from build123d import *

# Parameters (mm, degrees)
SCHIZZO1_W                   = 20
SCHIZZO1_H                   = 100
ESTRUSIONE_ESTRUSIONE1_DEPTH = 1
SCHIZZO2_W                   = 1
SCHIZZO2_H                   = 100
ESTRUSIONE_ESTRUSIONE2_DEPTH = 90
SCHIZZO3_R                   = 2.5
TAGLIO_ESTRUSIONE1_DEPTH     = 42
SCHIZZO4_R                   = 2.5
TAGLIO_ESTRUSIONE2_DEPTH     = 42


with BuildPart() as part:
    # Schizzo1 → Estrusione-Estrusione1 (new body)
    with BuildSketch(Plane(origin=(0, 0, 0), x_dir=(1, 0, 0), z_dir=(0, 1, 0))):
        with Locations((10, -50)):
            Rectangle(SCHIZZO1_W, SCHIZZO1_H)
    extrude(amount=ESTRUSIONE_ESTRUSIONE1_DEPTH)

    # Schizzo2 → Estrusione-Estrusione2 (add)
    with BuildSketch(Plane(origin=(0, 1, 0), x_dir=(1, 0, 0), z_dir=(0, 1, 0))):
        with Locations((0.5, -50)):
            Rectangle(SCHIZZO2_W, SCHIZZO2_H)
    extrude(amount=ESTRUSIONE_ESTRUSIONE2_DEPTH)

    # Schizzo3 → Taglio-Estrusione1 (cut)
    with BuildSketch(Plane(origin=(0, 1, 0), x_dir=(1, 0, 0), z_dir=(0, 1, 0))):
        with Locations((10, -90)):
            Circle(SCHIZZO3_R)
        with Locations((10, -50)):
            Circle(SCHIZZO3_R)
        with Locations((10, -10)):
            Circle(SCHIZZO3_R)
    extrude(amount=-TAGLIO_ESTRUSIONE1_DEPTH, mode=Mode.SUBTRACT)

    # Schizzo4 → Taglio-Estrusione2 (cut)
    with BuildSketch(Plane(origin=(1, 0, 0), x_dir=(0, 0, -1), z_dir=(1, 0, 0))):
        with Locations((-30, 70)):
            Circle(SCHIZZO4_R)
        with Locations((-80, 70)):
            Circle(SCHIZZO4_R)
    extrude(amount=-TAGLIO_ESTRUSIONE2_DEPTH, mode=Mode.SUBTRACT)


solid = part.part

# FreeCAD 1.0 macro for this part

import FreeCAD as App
import Part
import Sketcher


def add_polygon(sketch, points):
    """Adds a closed chain of lines whose ends are joined by coincident constraints."""
    first, n = sketch.GeometryCount, len(points)
    for a, b in zip(points, points[1:] + points[:1]):
        sketch.addGeometry(Part.LineSegment(App.Vector(*a, 0), App.Vector(*b, 0)), False)
    for i in range(n):
        sketch.addConstraint(Sketcher.Constraint("Coincident", first + i, 2, first + (i + 1) % n, 1))

doc = App.newDocument("Part")
body = doc.addObject("PartDesign::Body", "Body")

sketch1 = body.newObject("Sketcher::SketchObject", "Sketch")
sketch1.AttachmentSupport = (doc.getObject("XZ_Plane"), [""])
sketch1.MapMode = "FlatFace"
add_polygon(sketch1, [(0, 0), (0, 100), (20, 100), (20, 0)])
sketch1.addConstraint([
    Sketcher.Constraint("Vertical", 0),
    Sketcher.Constraint("Horizontal", 1),
    Sketcher.Constraint("Vertical", 2),
    Sketcher.Constraint("Horizontal", 3),
    Sketcher.Constraint("Coincident", 3, 2, -1, 1),
    Sketcher.Constraint("DistanceX", 1, 1, 1, 2, 20.0),
    Sketcher.Constraint("DistanceY", 0, 1, 0, 2, 100.0),
])
pad1 = body.newObject("PartDesign::Pad", "Pad")
pad1.Profile = sketch1
pad1.Length = 1
pad1.Reversed = True

sketch2 = body.newObject("Sketcher::SketchObject", "Sketch001")
sketch2.AttachmentSupport = (doc.getObject("XZ_Plane"), [""])
sketch2.MapMode = "FlatFace"
sketch2.AttachmentOffset = App.Placement(App.Vector(0, 0, -1), App.Rotation())
add_polygon(sketch2, [(0, 0), (0, 100), (1, 100), (1, 0)])
sketch2.addConstraint([
    Sketcher.Constraint("Vertical", 0),
    Sketcher.Constraint("Horizontal", 1),
    Sketcher.Constraint("Vertical", 2),
    Sketcher.Constraint("Horizontal", 3),
    Sketcher.Constraint("Coincident", 3, 2, -1, 1),
    Sketcher.Constraint("DistanceX", 1, 1, 1, 2, 1.0),
    Sketcher.Constraint("DistanceY", 0, 1, 0, 2, 100.0),
])
pad2 = body.newObject("PartDesign::Pad", "Pad001")
pad2.Profile = sketch2
pad2.Length = 90
pad2.Reversed = True

sketch3 = body.newObject("Sketcher::SketchObject", "Sketch002")
sketch3.AttachmentSupport = (doc.getObject("XZ_Plane"), [""])
sketch3.MapMode = "FlatFace"
sketch3.AttachmentOffset = App.Placement(App.Vector(0, 0, -1), App.Rotation())
sketch3.addGeometry([
    Part.Circle(App.Vector(10, 90, 0), App.Vector(0, 0, 1), 2.5),
    Part.Circle(App.Vector(10, 50, 0), App.Vector(0, 0, 1), 2.5),
    Part.Circle(App.Vector(10, 10, 0), App.Vector(0, 0, 1), 2.5),
], False)
sketch3.addConstraint([
    Sketcher.Constraint("Equal", 0, 1),
    Sketcher.Constraint("Equal", 1, 2),
    Sketcher.Constraint("Vertical", 0, 3, 1, 3),
    Sketcher.Constraint("Vertical", 1, 3, 2, 3),
    Sketcher.Constraint("Diameter", 0, 5.0),
    Sketcher.Constraint("DistanceX", -1, 1, 0, 3, 10.0),
    Sketcher.Constraint("DistanceY", -1, 1, 0, 3, 90.0),
    Sketcher.Constraint("DistanceY", -1, 1, 1, 3, 50.0),
    Sketcher.Constraint("DistanceY", -1, 1, 2, 3, 10.0),
])
pocket1 = body.newObject("PartDesign::Pocket", "Pocket")
pocket1.Profile = sketch3
pocket1.Length = 42
pocket1.Reversed = True

sketch4 = body.newObject("Sketcher::SketchObject", "Sketch003")
sketch4.AttachmentSupport = (doc.getObject("YZ_Plane"), [""])
sketch4.MapMode = "FlatFace"
sketch4.AttachmentOffset = App.Placement(App.Vector(0, 0, 1), App.Rotation())
sketch4.addGeometry([
    Part.Circle(App.Vector(70, 30, 0), App.Vector(0, 0, 1), 2.5),
    Part.Circle(App.Vector(70, 80, 0), App.Vector(0, 0, 1), 2.5),
], False)
sketch4.addConstraint([
    Sketcher.Constraint("Equal", 0, 1),
    Sketcher.Constraint("Vertical", 0, 3, 1, 3),
    Sketcher.Constraint("Diameter", 0, 5.0),
    Sketcher.Constraint("DistanceX", -1, 1, 0, 3, 70.0),
    Sketcher.Constraint("DistanceY", -1, 1, 0, 3, 30.0),
    Sketcher.Constraint("DistanceY", -1, 1, 1, 3, 80.0),
])
pocket2 = body.newObject("PartDesign::Pocket", "Pocket001")
pocket2.Profile = sketch4
pocket2.Length = 42

doc.recompute()
